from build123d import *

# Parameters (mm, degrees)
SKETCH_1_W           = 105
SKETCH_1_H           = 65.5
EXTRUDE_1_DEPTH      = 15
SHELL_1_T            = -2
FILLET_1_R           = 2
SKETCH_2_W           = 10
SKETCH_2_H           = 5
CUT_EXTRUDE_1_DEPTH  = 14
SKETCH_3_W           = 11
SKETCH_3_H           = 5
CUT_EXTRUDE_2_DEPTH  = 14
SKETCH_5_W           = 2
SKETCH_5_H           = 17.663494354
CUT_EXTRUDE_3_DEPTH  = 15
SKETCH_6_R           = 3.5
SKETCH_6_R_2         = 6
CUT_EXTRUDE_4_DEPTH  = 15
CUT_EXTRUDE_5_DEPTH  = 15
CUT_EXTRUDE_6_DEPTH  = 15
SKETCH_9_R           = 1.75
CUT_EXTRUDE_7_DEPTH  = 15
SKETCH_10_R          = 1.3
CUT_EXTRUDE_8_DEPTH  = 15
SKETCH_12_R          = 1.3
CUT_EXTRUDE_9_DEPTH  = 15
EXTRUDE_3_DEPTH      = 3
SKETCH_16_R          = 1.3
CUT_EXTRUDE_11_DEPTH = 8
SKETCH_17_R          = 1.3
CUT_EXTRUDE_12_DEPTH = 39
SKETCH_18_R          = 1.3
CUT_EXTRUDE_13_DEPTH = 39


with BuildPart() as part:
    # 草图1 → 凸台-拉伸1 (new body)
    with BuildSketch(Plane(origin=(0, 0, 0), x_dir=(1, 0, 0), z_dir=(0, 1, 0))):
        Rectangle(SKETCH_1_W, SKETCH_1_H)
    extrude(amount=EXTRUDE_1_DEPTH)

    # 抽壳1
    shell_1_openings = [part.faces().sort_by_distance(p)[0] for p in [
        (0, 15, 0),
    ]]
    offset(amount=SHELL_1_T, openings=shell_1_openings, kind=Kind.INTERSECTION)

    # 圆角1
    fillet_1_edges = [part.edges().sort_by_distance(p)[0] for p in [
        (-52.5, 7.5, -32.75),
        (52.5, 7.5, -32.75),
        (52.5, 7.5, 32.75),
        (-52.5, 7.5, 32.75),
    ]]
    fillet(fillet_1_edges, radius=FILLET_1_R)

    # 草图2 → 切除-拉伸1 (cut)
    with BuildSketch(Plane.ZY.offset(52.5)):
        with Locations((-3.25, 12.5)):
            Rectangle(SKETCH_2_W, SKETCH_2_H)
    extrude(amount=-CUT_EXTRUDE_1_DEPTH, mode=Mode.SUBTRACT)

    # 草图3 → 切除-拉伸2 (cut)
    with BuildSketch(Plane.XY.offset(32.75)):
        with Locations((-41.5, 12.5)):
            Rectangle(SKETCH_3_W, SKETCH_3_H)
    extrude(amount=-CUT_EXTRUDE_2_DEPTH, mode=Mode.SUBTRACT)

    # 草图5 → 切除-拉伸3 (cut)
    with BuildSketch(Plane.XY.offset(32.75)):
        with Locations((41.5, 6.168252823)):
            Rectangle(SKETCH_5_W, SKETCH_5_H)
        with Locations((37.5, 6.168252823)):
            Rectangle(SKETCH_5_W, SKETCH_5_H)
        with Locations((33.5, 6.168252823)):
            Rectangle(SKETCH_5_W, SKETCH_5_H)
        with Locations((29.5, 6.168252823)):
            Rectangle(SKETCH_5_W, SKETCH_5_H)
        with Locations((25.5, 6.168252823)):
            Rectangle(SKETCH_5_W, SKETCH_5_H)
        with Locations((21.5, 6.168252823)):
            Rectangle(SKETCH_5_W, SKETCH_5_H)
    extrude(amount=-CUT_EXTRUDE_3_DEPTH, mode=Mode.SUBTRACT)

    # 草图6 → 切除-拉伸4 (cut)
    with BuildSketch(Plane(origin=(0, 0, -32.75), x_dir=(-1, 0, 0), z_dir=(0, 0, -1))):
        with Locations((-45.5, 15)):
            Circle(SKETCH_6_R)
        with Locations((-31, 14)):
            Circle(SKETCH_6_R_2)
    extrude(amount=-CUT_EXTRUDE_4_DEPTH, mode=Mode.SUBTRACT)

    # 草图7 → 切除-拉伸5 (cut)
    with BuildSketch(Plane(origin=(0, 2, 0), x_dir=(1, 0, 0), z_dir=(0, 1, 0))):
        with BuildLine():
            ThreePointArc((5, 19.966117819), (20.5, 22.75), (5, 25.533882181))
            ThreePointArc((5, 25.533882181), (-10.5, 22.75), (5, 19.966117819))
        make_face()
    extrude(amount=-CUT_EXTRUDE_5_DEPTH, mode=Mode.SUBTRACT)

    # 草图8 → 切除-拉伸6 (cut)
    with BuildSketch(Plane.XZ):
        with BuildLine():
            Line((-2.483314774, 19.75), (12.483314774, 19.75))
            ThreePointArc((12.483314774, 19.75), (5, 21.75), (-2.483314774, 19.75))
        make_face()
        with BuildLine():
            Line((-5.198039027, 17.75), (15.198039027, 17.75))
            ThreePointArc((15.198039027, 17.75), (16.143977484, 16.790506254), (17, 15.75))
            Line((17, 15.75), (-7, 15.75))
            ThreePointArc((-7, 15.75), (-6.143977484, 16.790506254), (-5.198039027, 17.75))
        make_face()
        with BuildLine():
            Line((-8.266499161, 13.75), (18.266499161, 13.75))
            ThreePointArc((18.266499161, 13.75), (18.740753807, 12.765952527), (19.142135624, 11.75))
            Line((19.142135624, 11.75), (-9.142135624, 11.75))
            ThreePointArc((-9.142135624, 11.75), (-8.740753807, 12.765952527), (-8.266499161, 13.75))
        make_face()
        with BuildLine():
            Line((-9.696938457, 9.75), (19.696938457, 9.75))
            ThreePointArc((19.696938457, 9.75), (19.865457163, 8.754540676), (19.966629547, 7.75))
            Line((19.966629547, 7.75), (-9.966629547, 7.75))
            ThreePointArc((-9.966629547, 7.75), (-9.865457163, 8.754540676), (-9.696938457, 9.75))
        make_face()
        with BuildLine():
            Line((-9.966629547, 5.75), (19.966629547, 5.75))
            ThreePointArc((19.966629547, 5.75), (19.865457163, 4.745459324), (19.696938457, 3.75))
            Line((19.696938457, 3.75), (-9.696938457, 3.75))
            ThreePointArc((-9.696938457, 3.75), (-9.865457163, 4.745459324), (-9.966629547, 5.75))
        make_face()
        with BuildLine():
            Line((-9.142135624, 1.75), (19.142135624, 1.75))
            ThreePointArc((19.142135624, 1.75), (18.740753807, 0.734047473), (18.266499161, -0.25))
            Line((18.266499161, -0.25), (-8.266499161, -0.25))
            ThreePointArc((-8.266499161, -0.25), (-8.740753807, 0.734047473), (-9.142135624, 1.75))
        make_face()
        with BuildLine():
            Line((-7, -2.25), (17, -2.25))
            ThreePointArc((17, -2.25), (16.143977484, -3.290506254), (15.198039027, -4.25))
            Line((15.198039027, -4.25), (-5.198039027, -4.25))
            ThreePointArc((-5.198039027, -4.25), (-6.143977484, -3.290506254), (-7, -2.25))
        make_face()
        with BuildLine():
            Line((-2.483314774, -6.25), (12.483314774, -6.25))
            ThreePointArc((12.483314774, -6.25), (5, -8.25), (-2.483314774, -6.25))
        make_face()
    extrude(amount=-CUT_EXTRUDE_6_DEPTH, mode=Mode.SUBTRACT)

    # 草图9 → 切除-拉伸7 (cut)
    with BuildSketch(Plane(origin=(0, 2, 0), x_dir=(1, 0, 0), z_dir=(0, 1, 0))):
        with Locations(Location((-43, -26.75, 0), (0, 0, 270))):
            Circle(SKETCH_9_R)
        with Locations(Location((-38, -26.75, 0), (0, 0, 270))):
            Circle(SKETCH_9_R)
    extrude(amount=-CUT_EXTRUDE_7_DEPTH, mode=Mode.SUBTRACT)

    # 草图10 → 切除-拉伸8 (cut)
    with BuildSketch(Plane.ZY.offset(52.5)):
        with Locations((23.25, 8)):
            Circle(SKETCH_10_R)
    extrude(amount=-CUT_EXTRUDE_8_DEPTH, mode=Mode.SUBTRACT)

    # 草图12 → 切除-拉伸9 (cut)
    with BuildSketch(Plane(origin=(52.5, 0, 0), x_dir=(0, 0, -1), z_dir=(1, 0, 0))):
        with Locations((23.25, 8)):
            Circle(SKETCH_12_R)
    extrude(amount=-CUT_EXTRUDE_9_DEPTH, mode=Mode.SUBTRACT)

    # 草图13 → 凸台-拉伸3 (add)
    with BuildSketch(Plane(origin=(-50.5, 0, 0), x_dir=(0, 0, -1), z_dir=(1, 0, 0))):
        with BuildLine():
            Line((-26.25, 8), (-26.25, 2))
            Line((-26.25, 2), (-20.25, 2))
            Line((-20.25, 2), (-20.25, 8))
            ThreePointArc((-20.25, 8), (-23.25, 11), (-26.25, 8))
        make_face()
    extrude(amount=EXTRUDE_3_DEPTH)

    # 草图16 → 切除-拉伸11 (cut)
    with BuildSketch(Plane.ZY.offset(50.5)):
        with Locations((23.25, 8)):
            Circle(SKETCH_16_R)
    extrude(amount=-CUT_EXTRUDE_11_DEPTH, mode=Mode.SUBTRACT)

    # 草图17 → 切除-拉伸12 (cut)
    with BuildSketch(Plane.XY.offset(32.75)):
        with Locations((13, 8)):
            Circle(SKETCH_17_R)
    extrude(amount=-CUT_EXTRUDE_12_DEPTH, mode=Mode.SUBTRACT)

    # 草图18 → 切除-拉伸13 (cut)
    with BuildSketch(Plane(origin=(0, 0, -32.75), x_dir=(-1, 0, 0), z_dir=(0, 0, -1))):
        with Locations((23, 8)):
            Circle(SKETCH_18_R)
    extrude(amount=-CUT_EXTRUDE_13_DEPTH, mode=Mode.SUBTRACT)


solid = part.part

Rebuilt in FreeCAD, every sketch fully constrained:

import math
import FreeCAD as App
import Part
import Sketcher

V = App.Vector


def edges_at(feature, points):
    """Names of the edges that pass closest to the given points."""
    edges = feature.Shape.Edges
    near = lambda p: min(range(len(edges)), key=lambda i: edges[i].distToShape(Part.Vertex(*p))[0])
    return sorted({f"Edge{near(p) + 1}" for p in points})


def faces_at(feature, points):
    """Names of the faces that lie closest to the given points."""
    faces = feature.Shape.Faces
    near = lambda p: min(range(len(faces)), key=lambda i: faces[i].distToShape(Part.Vertex(*p))[0])
    return sorted({f"Face{near(p) + 1}" for p in points})

doc = App.newDocument("Part")
params = doc.addObject("Spreadsheet::Sheet", "Params")
for row, (alias, value) in enumerate([
    ("sketch1_width", "105 mm"),
    ("sketch1_height", "65.5 mm"),
    ("pad1_length", "15 mm"),
    ("thickness_wall", "2 mm"),
    ("fillet_radius", "2 mm"),
    ("sketch2_width", "5 mm"),
    ("sketch2_height", "10 mm"),
    ("pocket1_length", "14 mm"),
    ("sketch3_width", "11 mm"),
    ("sketch3_height", "5 mm"),
    ("pocket2_length", "14 mm"),
    ("sketch4_width", "2 mm"),
    ("pocket3_length", "15 mm"),
    ("sketch5_diameter", "7 mm"),
    ("sketch5_diameter2", "12 mm"),
    ("pocket4_length", "15 mm"),
    ("sketch6_radius", "8 mm"),
    ("pocket5_length", "15 mm"),
    ("sketch7_radius", "15 mm"),
    ("sketch7_width", "24 mm"),
    ("pocket6_length", "15 mm"),
    ("sketch8_diameter", "3.5 mm"),
    ("pocket7_length", "15 mm"),
    ("sketch9_diameter", "2.6 mm"),
    ("pocket8_length", "15 mm"),
    ("sketch10_diameter", "2.6 mm"),
    ("pocket9_length", "15 mm"),
    ("sketch11_radius", "3 mm"),
    ("pad2_length", "3 mm"),
    ("sketch12_diameter", "2.6 mm"),
    ("pocket10_length", "8 mm"),
    ("sketch13_diameter", "2.6 mm"),
    ("pocket11_length", "39 mm"),
    ("sketch14_diameter", "2.6 mm"),
    ("pocket12_length", "39 mm"),
], start=1):
    params.set(f"A{row}", alias)
    params.set(f"B{row}", "=" + value)
    params.setAlias(f"B{row}", alias)

body = doc.addObject("PartDesign::Body", "Body")

# Sketch on XZ plane
sketch1 = body.newObject("Sketcher::SketchObject", "Sketch")
sketch1.AttachmentSupport = (doc.getObject("XZ_Plane"), [""])
sketch1.MapMode = "FlatFace"
sketch1.addGeometry([
    Part.LineSegment(V(-52, -33, 0), V(-52, 33, 0)),
    Part.LineSegment(V(-52, 33, 0), V(52, 33, 0)),
    Part.LineSegment(V(52, 33, 0), V(52, -33, 0)),
    Part.LineSegment(V(52, -33, 0), V(-52, -33, 0)),
], False)
sketch1.addConstraint([
    Sketcher.Constraint("Coincident", 0, 2, 1, 1),
    Sketcher.Constraint("Coincident", 1, 2, 2, 1),
    Sketcher.Constraint("Coincident", 2, 2, 3, 1),
    Sketcher.Constraint("Coincident", 3, 2, 0, 1),
    Sketcher.Constraint("Vertical", 0),
    Sketcher.Constraint("Horizontal", 1),
    Sketcher.Constraint("Vertical", 2),
    Sketcher.Constraint("Horizontal", 3),
    Sketcher.Constraint("Symmetric", 0, 2, 2, 2, -1, 1),
    Sketcher.Constraint("DistanceX", 1, 1, 1, 2, 105.0),
    Sketcher.Constraint("DistanceY", 0, 1, 0, 2, 65.5),
])
sketch1.setExpression("Constraints[9]", "Params.sketch1_width")
sketch1.setExpression("Constraints[10]", "Params.sketch1_height")
pad1 = body.newObject("PartDesign::Pad", "Pad")
pad1.Profile = sketch1
pad1.setExpression("Length", "Params.pad1_length")
pad1.Reversed = True
doc.recompute()

thickness = body.newObject("PartDesign::Thickness", "Thickness")
thickness.Base = (pad1, faces_at(pad1, [(0, 15, 0)]))
thickness.setExpression("Value", "Params.thickness_wall")
thickness.Reversed = True
thickness.Join = "Intersection"
doc.recompute()

fillet = body.newObject("PartDesign::Fillet", "Fillet")
fillet.Base = (thickness, edges_at(thickness, [
    (-52.5, 7.5, -32.75),
    (52.5, 7.5, -32.75),
    (52.5, 7.5, 32.75),
    (-52.5, 7.5, 32.75),
]))
fillet.setExpression("Radius", "Params.fillet_radius")

# Sketch on YZ plane
sketch2 = body.newObject("Sketcher::SketchObject", "Sketch001")
sketch2.AttachmentSupport = (doc.getObject("YZ_Plane"), [""])
sketch2.MapMode = "FlatFace"
sketch2.AttachmentOffset = App.Placement(V(0, 0, -52.5), App.Rotation())
sketch2.addGeometry([
    Part.LineSegment(V(15, -8, 0), V(10, -8, 0)),
    Part.LineSegment(V(10, -8, 0), V(10, 2, 0)),
    Part.LineSegment(V(10, 2, 0), V(15, 2, 0)),
    Part.LineSegment(V(15, 2, 0), V(15, -8, 0)),
], False)
sketch2.addConstraint([
    Sketcher.Constraint("Coincident", 0, 2, 1, 1),
    Sketcher.Constraint("Coincident", 1, 2, 2, 1),
    Sketcher.Constraint("Coincident", 2, 2, 3, 1),
    Sketcher.Constraint("Coincident", 3, 2, 0, 1),
    Sketcher.Constraint("Horizontal", 0),
    Sketcher.Constraint("Vertical", 1),
    Sketcher.Constraint("Horizontal", 2),
    Sketcher.Constraint("Vertical", 3),
    Sketcher.Constraint("DistanceX", 0, 2, 0, 1, 5.0),
    Sketcher.Constraint("DistanceY", 1, 1, 1, 2, 10.0),
    Sketcher.Constraint("DistanceX", -1, 1, 0, 2, 10.0),
    Sketcher.Constraint("DistanceY", 0, 2, -1, 1, 8.25),
])
sketch2.setExpression("Constraints[8]", "Params.sketch2_width")
sketch2.setExpression("Constraints[9]", "Params.sketch2_height")
pocket1 = body.newObject("PartDesign::Pocket", "Pocket")
pocket1.Profile = sketch2
pocket1.setExpression("Length", "Params.pocket1_length")
pocket1.Reversed = True

# Sketch on XY plane
sketch3 = body.newObject("Sketcher::SketchObject", "Sketch002")
sketch3.AttachmentSupport = (doc.getObject("XY_Plane"), [""])
sketch3.MapMode = "FlatFace"
sketch3.AttachmentOffset = App.Placement(V(0, 0, 32.75), App.Rotation())
sketch3.addGeometry([
    Part.LineSegment(V(-47, 15, 0), V(-47, 10, 0)),
    Part.LineSegment(V(-47, 10, 0), V(-36, 10, 0)),
    Part.LineSegment(V(-36, 10, 0), V(-36, 15, 0)),
    Part.LineSegment(V(-36, 15, 0), V(-47, 15, 0)),
], False)
sketch3.addConstraint([
    Sketcher.Constraint("Coincident", 0, 2, 1, 1),
    Sketcher.Constraint("Coincident", 1, 2, 2, 1),
    Sketcher.Constraint("Coincident", 2, 2, 3, 1),
    Sketcher.Constraint("Coincident", 3, 2, 0, 1),
    Sketcher.Constraint("Vertical", 0),
    Sketcher.Constraint("Horizontal", 1),
    Sketcher.Constraint("Vertical", 2),
    Sketcher.Constraint("Horizontal", 3),
    Sketcher.Constraint("DistanceX", 1, 1, 1, 2, 11.0),
    Sketcher.Constraint("DistanceY", 0, 2, 0, 1, 5.0),
    Sketcher.Constraint("DistanceX", 0, 2, -1, 1, 47.0),
    Sketcher.Constraint("DistanceY", -1, 1, 0, 2, 10.0),
])
sketch3.setExpression("Constraints[8]", "Params.sketch3_width")
sketch3.setExpression("Constraints[9]", "Params.sketch3_height")
pocket2 = body.newObject("PartDesign::Pocket", "Pocket001")
pocket2.Profile = sketch3
pocket2.setExpression("Length", "Params.pocket2_length")

# Sketch on XY plane
sketch4 = body.newObject("Sketcher::SketchObject", "Sketch003")
sketch4.AttachmentSupport = (doc.getObject("XY_Plane"), [""])
sketch4.MapMode = "FlatFace"
sketch4.AttachmentOffset = App.Placement(V(0, 0, 32.75), App.Rotation())
sketch4.addGeometry([
    Part.LineSegment(V(40.5, 15, 0), V(40.5, -2.7, 0)),  # 0
    Part.LineSegment(V(40.5, -2.7, 0), V(42.5, -2.7, 0)),  # 1
    Part.LineSegment(V(42.5, -2.7, 0), V(42.5, 15, 0)),  # 2
    Part.LineSegment(V(42.5, 15, 0), V(40.5, 15, 0)),  # 3
    Part.LineSegment(V(36.5, 15, 0), V(36.5, -2.7, 0)),  # 4
    Part.LineSegment(V(36.5, -2.7, 0), V(38.5, -2.7, 0)),  # 5
    Part.LineSegment(V(38.5, -2.7, 0), V(38.5, 15, 0)),  # 6
    Part.LineSegment(V(38.5, 15, 0), V(36.5, 15, 0)),  # 7
    Part.LineSegment(V(32.5, 15, 0), V(32.5, -2.7, 0)),  # 8
    Part.LineSegment(V(32.5, -2.7, 0), V(34.5, -2.7, 0)),  # 9
    Part.LineSegment(V(34.5, -2.7, 0), V(34.5, 15, 0)),  # 10
    Part.LineSegment(V(34.5, 15, 0), V(32.5, 15, 0)),  # 11
    Part.LineSegment(V(28.5, 15, 0), V(28.5, -2.7, 0)),  # 12
    Part.LineSegment(V(28.5, -2.7, 0), V(30.5, -2.7, 0)),  # 13
    Part.LineSegment(V(30.5, -2.7, 0), V(30.5, 15, 0)),  # 14
    Part.LineSegment(V(30.5, 15, 0), V(28.5, 15, 0)),  # 15
    Part.LineSegment(V(24.5, 15, 0), V(24.5, -2.7, 0)),  # 16
    Part.LineSegment(V(24.5, -2.7, 0), V(26.5, -2.7, 0)),  # 17
    Part.LineSegment(V(26.5, -2.7, 0), V(26.5, 15, 0)),  # 18
    Part.LineSegment(V(26.5, 15, 0), V(24.5, 15, 0)),  # 19
    Part.LineSegment(V(20.5, 15, 0), V(20.5, -2.7, 0)),  # 20
    Part.LineSegment(V(20.5, -2.7, 0), V(22.5, -2.7, 0)),  # 21
    Part.LineSegment(V(22.5, -2.7, 0), V(22.5, 15, 0)),  # 22
    Part.LineSegment(V(22.5, 15, 0), V(20.5, 15, 0)),  # 23
], False)
sketch4.addConstraint([
    Sketcher.Constraint("Coincident", 0, 2, 1, 1),
    Sketcher.Constraint("Coincident", 1, 2, 2, 1),
    Sketcher.Constraint("Coincident", 2, 2, 3, 1),
    Sketcher.Constraint("Coincident", 3, 2, 0, 1),
    Sketcher.Constraint("Coincident", 4, 2, 5, 1),
    Sketcher.Constraint("Coincident", 5, 2, 6, 1),
    Sketcher.Constraint("Coincident", 6, 2, 7, 1),
    Sketcher.Constraint("Coincident", 7, 2, 4, 1),
    Sketcher.Constraint("Coincident", 8, 2, 9, 1),
    Sketcher.Constraint("Coincident", 9, 2, 10, 1),
    Sketcher.Constraint("Coincident", 10, 2, 11, 1),
    Sketcher.Constraint("Coincident", 11, 2, 8, 1),
    Sketcher.Constraint("Coincident", 12, 2, 13, 1),
    Sketcher.Constraint("Coincident", 13, 2, 14, 1),
    Sketcher.Constraint("Coincident", 14, 2, 15, 1),
    Sketcher.Constraint("Coincident", 15, 2, 12, 1),
    Sketcher.Constraint("Coincident", 16, 2, 17, 1),
    Sketcher.Constraint("Coincident", 17, 2, 18, 1),
    Sketcher.Constraint("Coincident", 18, 2, 19, 1),
    Sketcher.Constraint("Coincident", 19, 2, 16, 1),
    Sketcher.Constraint("Coincident", 20, 2, 21, 1),
    Sketcher.Constraint("Coincident", 21, 2, 22, 1),
    Sketcher.Constraint("Coincident", 22, 2, 23, 1),
    Sketcher.Constraint("Coincident", 23, 2, 20, 1),
    Sketcher.Constraint("Vertical", 0),
    Sketcher.Constraint("Horizontal", 1),
    Sketcher.Constraint("Vertical", 2),
    Sketcher.Constraint("Horizontal", 3),
    Sketcher.Constraint("Vertical", 4),
    Sketcher.Constraint("Horizontal", 5),
    Sketcher.Constraint("Vertical", 6),
    Sketcher.Constraint("Horizontal", 7),
    Sketcher.Constraint("Vertical", 8),
    Sketcher.Constraint("Horizontal", 9),
    Sketcher.Constraint("Vertical", 10),
    Sketcher.Constraint("Horizontal", 11),
    Sketcher.Constraint("Vertical", 12),
    Sketcher.Constraint("Horizontal", 13),
    Sketcher.Constraint("Vertical", 14),
    Sketcher.Constraint("Horizontal", 15),
    Sketcher.Constraint("Vertical", 16),
    Sketcher.Constraint("Horizontal", 17),
    Sketcher.Constraint("Vertical", 18),
    Sketcher.Constraint("Horizontal", 19),
    Sketcher.Constraint("Vertical", 20),
    Sketcher.Constraint("Horizontal", 21),
    Sketcher.Constraint("Vertical", 22),
    Sketcher.Constraint("Horizontal", 23),
    Sketcher.Constraint("Horizontal", 1, 2, 4, 2),
    Sketcher.Constraint("Horizontal", 3, 2, 6, 2),
    Sketcher.Constraint("Horizontal", 5, 2, 8, 2),
    Sketcher.Constraint("Horizontal", 7, 2, 10, 2),
    Sketcher.Constraint("Horizontal", 9, 2, 12, 2),
    Sketcher.Constraint("Horizontal", 11, 2, 14, 2),
    Sketcher.Constraint("Horizontal", 13, 2, 16, 2),
    Sketcher.Constraint("Horizontal", 15, 2, 18, 2),
    Sketcher.Constraint("Horizontal", 17, 2, 20, 2),
    Sketcher.Constraint("Horizontal", 19, 2, 22, 2),
    Sketcher.Constraint("Equal", 3, 5),
    Sketcher.Constraint("Equal", 7, 9),
    Sketcher.Constraint("Equal", 11, 13),
    Sketcher.Constraint("Equal", 15, 17),
    Sketcher.Constraint("Equal", 19, 21),
    Sketcher.Constraint("DistanceX", 1, 1, 1, 2, 2.0),
    Sketcher.Constraint("DistanceY", -1, 1, 2, 2, 15.0),
    Sketcher.Constraint("DistanceX", 4, 2, 0, 2, 4.0),
    Sketcher.Constraint("DistanceX", 8, 2, 4, 2, 4.0),
    Sketcher.Constraint("DistanceX", 12, 2, 8, 2, 4.0),
    Sketcher.Constraint("DistanceX", 16, 2, 12, 2, 4.0),
    Sketcher.Constraint("DistanceX", 20, 2, 16, 2, 4.0),
    Sketcher.Constraint("DistanceX", -1, 1, 0, 2, 40.5),
    Sketcher.Constraint("DistanceY", 0, 2, 0, 1, 17.663494),
])
sketch4.setExpression("Constraints[63]", "Params.sketch4_width")
pocket3 = body.newObject("PartDesign::Pocket", "Pocket002")
pocket3.Profile = sketch4
pocket3.setExpression("Length", "Params.pocket3_length")

# Sketch on XY plane
sketch5 = body.newObject("Sketcher::SketchObject", "Sketch004")
sketch5.AttachmentSupport = (doc.getObject("XY_Plane"), [""])
sketch5.MapMode = "FlatFace"
sketch5.AttachmentOffset = App.Placement(V(0, 0, -32.75), App.Rotation())
sketch5.addGeometry([
    Part.Circle(V(45.5, 15, 0), V(0, 0, 1), 3.5),
    Part.Circle(V(31, 14, 0), V(0, 0, 1), 6),
], False)
sketch5.addConstraint([
    Sketcher.Constraint("Diameter", 0, 7.0),
    Sketcher.Constraint("Diameter", 1, 12.0),
    Sketcher.Constraint("DistanceY", -1, 1, 0, 3, 15.0),
    Sketcher.Constraint("DistanceX", -1, 1, 1, 3, 31.0),
    Sketcher.Constraint("DistanceY", -1, 1, 1, 3, 14.0),
    Sketcher.Constraint("DistanceX", -1, 1, 0, 3, 45.5),
])
sketch5.setExpression("Constraints[0]", "Params.sketch5_diameter")
sketch5.setExpression("Constraints[1]", "Params.sketch5_diameter2")
pocket4 = body.newObject("PartDesign::Pocket", "Pocket003")
pocket4.Profile = sketch5
pocket4.setExpression("Length", "Params.pocket4_length")
pocket4.Reversed = True

# Sketch on XZ plane
sketch6 = body.newObject("Sketcher::SketchObject", "Sketch005")
sketch6.AttachmentSupport = (doc.getObject("XZ_Plane"), [""])
sketch6.MapMode = "FlatFace"
sketch6.AttachmentOffset = App.Placement(V(0, 0, -2), App.Rotation())
sketch6.addGeometry([
    Part.ArcOfCircle(Part.Circle(V(12, -23, 0), V(0, 0, 1), 8), math.radians(-160), math.radians(160)),
    Part.ArcOfCircle(Part.Circle(V(-2, -23, 0), V(0, 0, 1), 8), math.radians(20), math.radians(340)),
], False)
sketch6.addConstraint([
    Sketcher.Constraint("Coincident", 0, 1, 1, 2),
    Sketcher.Constraint("Coincident", 1, 1, 0, 2),
    Sketcher.Constraint("Equal", 0, 1),
    Sketcher.Constraint("Horizontal", 0, 3, 1, 3),
    Sketcher.Constraint("Radius", 0, 8.0),
    Sketcher.Constraint("DistanceX", -1, 1, 0, 1, 5.0),
    Sketcher.Constraint("DistanceX", 1, 3, 0, 3, 15.0),
    Sketcher.Constraint("DistanceY", 0, 3, -1, 1, 22.75),
])
sketch6.setExpression("Constraints[4]", "Params.sketch6_radius")
pocket5 = body.newObject("PartDesign::Pocket", "Pocket004")
pocket5.Profile = sketch6
pocket5.setExpression("Length", "Params.pocket5_length")
pocket5.Reversed = True

# Sketch on XZ plane
sketch7 = body.newObject("Sketcher::SketchObject", "Sketch006")
sketch7.AttachmentSupport = (doc.getObject("XZ_Plane"), [""])
sketch7.MapMode = "FlatFace"
sketch7.addGeometry([
    Part.LineSegment(V(-2.5, 19.8, 0), V(12.5, 19.8, 0)),  # 0
    Part.ArcOfCircle(Part.Circle(V(5, 6.7, 0), V(0, 0, 1), 15), math.radians(60), math.radians(120)),  # 1
    Part.LineSegment(V(15.2, 17.8, 0), V(-5.2, 17.8, 0)),  # 2
    Part.ArcOfCircle(Part.Circle(V(5, 6.8, 0), V(0, 0, 1), 15), math.radians(132.83), math.radians(143.13)),  # 3
    Part.LineSegment(V(-7, 15.8, 0), V(17, 15.8, 0)),  # 4
    Part.ArcOfCircle(Part.Circle(V(5, 6.8, 0), V(0, 0, 1), 15), math.radians(36.87), math.radians(47.17)),  # 5
    Part.LineSegment(V(18.3, 13.8, 0), V(-8.3, 13.8, 0)),  # 6
    Part.ArcOfCircle(Part.Circle(V(5, 6.7, 0), V(0, 0, 1), 15), math.radians(152.18), math.radians(160.53)),  # 7
    Part.LineSegment(V(-9.1, 11.8, 0), V(19.1, 11.8, 0)),  # 8
    Part.ArcOfCircle(Part.Circle(V(5, 6.7, 0), V(0, 0, 1), 15), math.radians(19.47), math.radians(27.82)),  # 9
    Part.LineSegment(V(19.7, 9.8, 0), V(-9.7, 9.8, 0)),  # 10
    Part.ArcOfCircle(Part.Circle(V(5, 6.7, 0), V(0, 0, 1), 15), math.radians(168.46), math.radians(176.18)),  # 11
    Part.LineSegment(V(-10, 7.8, 0), V(20, 7.8, 0)),  # 12
    Part.ArcOfCircle(Part.Circle(V(5, 6.7, 0), V(0, 0, 1), 15), math.radians(3.82), math.radians(11.54)),  # 13
    Part.LineSegment(V(20, 5.8, 0), V(-10, 5.8, 0)),  # 14
    Part.ArcOfCircle(Part.Circle(V(5, 6.8, 0), V(0, 0, 1), 15), math.radians(-176.18), math.radians(-168.46)),  # 15
    Part.LineSegment(V(-9.7, 3.8, 0), V(19.7, 3.8, 0)),  # 16
    Part.ArcOfCircle(Part.Circle(V(5, 6.8, 0), V(0, 0, 1), 15), math.radians(-11.54), math.radians(-3.82)),  # 17
    Part.LineSegment(V(19.1, 1.8, 0), V(-9.1, 1.8, 0)),  # 18
    Part.ArcOfCircle(Part.Circle(V(5, 6.8, 0), V(0, 0, 1), 15), math.radians(-160.53), math.radians(-152.18)),  # 19
    Part.LineSegment(V(-8.3, -0.2, 0), V(18.3, -0.2, 0)),  # 20
    Part.ArcOfCircle(Part.Circle(V(5, 6.8, 0), V(0, 0, 1), 15), math.radians(-27.82), math.radians(-19.47)),  # 21
    Part.LineSegment(V(17, -2.2, 0), V(-7, -2.2, 0)),  # 22
    Part.ArcOfCircle(Part.Circle(V(5, 6.7, 0), V(0, 0, 1), 15), math.radians(-143.13), math.radians(-132.83)),  # 23
    Part.LineSegment(V(-5.2, -4.2, 0), V(15.2, -4.2, 0)),  # 24
    Part.ArcOfCircle(Part.Circle(V(5, 6.7, 0), V(0, 0, 1), 15), math.radians(-47.17), math.radians(-36.87)),  # 25
    Part.LineSegment(V(12.5, -6.2, 0), V(-2.5, -6.2, 0)),  # 26
    Part.ArcOfCircle(Part.Circle(V(5, 6.8, 0), V(0, 0, 1), 15), math.radians(-120), math.radians(-60)),  # 27
], False)
sketch7.addConstraint([
    Sketcher.Constraint("Coincident", 0, 1, 1, 2),
    Sketcher.Constraint("Coincident", 1, 1, 0, 2),
    Sketcher.Constraint("Coincident", 2, 2, 3, 1),
    Sketcher.Constraint("Coincident", 3, 2, 4, 1),
    Sketcher.Constraint("Coincident", 4, 2, 5, 1),
    Sketcher.Constraint("Coincident", 5, 2, 2, 1),
    Sketcher.Constraint("Coincident", 6, 2, 7, 1),
    Sketcher.Constraint("Coincident", 7, 2, 8, 1),
    Sketcher.Constraint("Coincident", 8, 2, 9, 1),
    Sketcher.Constraint("Coincident", 9, 2, 6, 1),
    Sketcher.Constraint("Coincident", 10, 2, 11, 1),
    Sketcher.Constraint("Coincident", 11, 2, 12, 1),
    Sketcher.Constraint("Coincident", 12, 2, 13, 1),
    Sketcher.Constraint("Coincident", 13, 2, 10, 1),
    Sketcher.Constraint("Coincident", 14, 2, 15, 1),
    Sketcher.Constraint("Coincident", 15, 2, 16, 1),
    Sketcher.Constraint("Coincident", 16, 2, 17, 1),
    Sketcher.Constraint("Coincident", 17, 2, 14, 1),
    Sketcher.Constraint("Coincident", 18, 2, 19, 1),
    Sketcher.Constraint("Coincident", 19, 2, 20, 1),
    Sketcher.Constraint("Coincident", 20, 2, 21, 1),
    Sketcher.Constraint("Coincident", 21, 2, 18, 1),
    Sketcher.Constraint("Coincident", 22, 2, 23, 1),
    Sketcher.Constraint("Coincident", 23, 2, 24, 1),
    Sketcher.Constraint("Coincident", 24, 2, 25, 1),
    Sketcher.Constraint("Coincident", 25, 2, 22, 1),
    Sketcher.Constraint("Coincident", 26, 1, 27, 2),
    Sketcher.Constraint("Coincident", 27, 1, 26, 2),
    Sketcher.Constraint("Horizontal", 0),
    Sketcher.Constraint("Horizontal", 2),
    Sketcher.Constraint("Horizontal", 4),
    Sketcher.Constraint("Horizontal", 6),
    Sketcher.Constraint("Horizontal", 8),
    Sketcher.Constraint("Horizontal", 10),
    Sketcher.Constraint("Horizontal", 12),
    Sketcher.Constraint("Horizontal", 14),
    Sketcher.Constraint("Horizontal", 16),
    Sketcher.Constraint("Horizontal", 18),
    Sketcher.Constraint("Horizontal", 20),
    Sketcher.Constraint("Horizontal", 22),
    Sketcher.Constraint("Horizontal", 24),
    Sketcher.Constraint("Horizontal", 26),
    Sketcher.Constraint("Coincident", 3, 3, 1, 3),
    Sketcher.Constraint("Coincident", 5, 3, 1, 3),
    Sketcher.Constraint("Coincident", 7, 3, 1, 3),
    Sketcher.Constraint("Coincident", 9, 3, 1, 3),
    Sketcher.Constraint("Coincident", 11, 3, 1, 3),
    Sketcher.Constraint("Coincident", 13, 3, 1, 3),
    Sketcher.Constraint("Coincident", 15, 3, 1, 3),
    Sketcher.Constraint("Coincident", 17, 3, 1, 3),
    Sketcher.Constraint("Coincident", 19, 3, 1, 3),
    Sketcher.Constraint("Coincident", 21, 3, 1, 3),
    Sketcher.Constraint("Coincident", 23, 3, 1, 3),
    Sketcher.Constraint("Coincident", 25, 3, 1, 3),
    Sketcher.Constraint("Coincident", 27, 3, 1, 3),
    Sketcher.Constraint("Equal", 1, 3),
    Sketcher.Constraint("Equal", 3, 5),
    Sketcher.Constraint("Equal", 5, 7),
    Sketcher.Constraint("Equal", 7, 9),
    Sketcher.Constraint("Equal", 9, 11),
    Sketcher.Constraint("Equal", 11, 13),
    Sketcher.Constraint("Equal", 13, 15),
    Sketcher.Constraint("Equal", 15, 17),
    Sketcher.Constraint("Equal", 17, 19),
    Sketcher.Constraint("Equal", 19, 21),
    Sketcher.Constraint("Equal", 21, 23),
    Sketcher.Constraint("Equal", 23, 25),
    Sketcher.Constraint("Equal", 25, 27),
    Sketcher.Constraint("Vertical", 11, 2, 14, 2),
    Sketcher.Constraint("Vertical", 10, 2, 15, 2),
    Sketcher.Constraint("Vertical", 7, 2, 18, 2),
    Sketcher.Constraint("Vertical", 6, 2, 19, 2),
    Sketcher.Constraint("Vertical", 3, 2, 22, 2),
    Sketcher.Constraint("Vertical", 2, 2, 23, 2),
    Sketcher.Constraint("Vertical", 1, 1, 26, 1),
    Sketcher.Constraint("Radius", 1, 15.0),
    Sketcher.Constraint("DistanceX", 4, 1, 4, 2, 24.0),
    Sketcher.Constraint("DistanceX", -1, 1, 1, 3, 5.0),
    Sketcher.Constraint("DistanceY", 17, 3, 0, 1, 13.0),
    Sketcher.Constraint("DistanceY", 2, 2, 0, 1, 2.0),
    Sketcher.Constraint("DistanceY", 6, 2, 3, 2, 2.0),
    Sketcher.Constraint("DistanceY", 7, 2, 6, 2, 2.0),
    Sketcher.Constraint("DistanceY", 10, 2, 7, 2, 2.0),
    Sketcher.Constraint("DistanceY", 11, 2, 10, 2, 2.0),
    Sketcher.Constraint("DistanceY", -1, 1, 1, 3, 6.75),
])
sketch7.setExpression("Constraints[75]", "Params.sketch7_radius")
sketch7.setExpression("Constraints[76]", "Params.sketch7_width")
pocket6 = body.newObject("PartDesign::Pocket", "Pocket005")
pocket6.Profile = sketch7
pocket6.setExpression("Length", "Params.pocket6_length")

# Sketch on XZ plane
sketch8 = body.newObject("Sketcher::SketchObject", "Sketch007")
sketch8.AttachmentSupport = (doc.getObject("XZ_Plane"), [""])
sketch8.MapMode = "FlatFace"
sketch8.AttachmentOffset = App.Placement(V(0, 0, -2), App.Rotation())
sketch8.addGeometry([
    Part.Circle(V(-43, 26.8, 0), V(0, 0, 1), 1.8),
    Part.Circle(V(-38, 26.8, 0), V(0, 0, 1), 1.8),
], False)
sketch8.addConstraint([
    Sketcher.Constraint("Equal", 0, 1),
    Sketcher.Constraint("Horizontal", 0, 3, 1, 3),
    Sketcher.Constraint("Diameter", 0, 3.5),
    Sketcher.Constraint("DistanceX", 0, 3, -1, 1, 43.0),
    Sketcher.Constraint("DistanceX", 1, 3, -1, 1, 38.0),
    Sketcher.Constraint("DistanceY", -1, 1, 0, 3, 26.75),
])
sketch8.setExpression("Constraints[2]", "Params.sketch8_diameter")
pocket7 = body.newObject("PartDesign::Pocket", "Pocket006")
pocket7.Profile = sketch8
pocket7.setExpression("Length", "Params.pocket7_length")
pocket7.Reversed = True

# Sketch on YZ plane
sketch9 = body.newObject("Sketcher::SketchObject", "Sketch008")
sketch9.AttachmentSupport = (doc.getObject("YZ_Plane"), [""])
sketch9.MapMode = "FlatFace"
sketch9.AttachmentOffset = App.Placement(V(0, 0, -52.5), App.Rotation())
sketch9.addGeometry(Part.Circle(V(8, 23.2, 0), V(0, 0, 1), 1.3), False)
sketch9.addConstraint([
    Sketcher.Constraint("Diameter", 0, 2.6),
    Sketcher.Constraint("DistanceX", -1, 1, 0, 3, 8.0),
    Sketcher.Constraint("DistanceY", -1, 1, 0, 3, 23.25),
])
sketch9.setExpression("Constraints[0]", "Params.sketch9_diameter")
pocket8 = body.newObject("PartDesign::Pocket", "Pocket007")
pocket8.Profile = sketch9
pocket8.setExpression("Length", "Params.pocket8_length")
pocket8.Reversed = True

# Sketch on YZ plane
sketch10 = body.newObject("Sketcher::SketchObject", "Sketch009")
sketch10.AttachmentSupport = (doc.getObject("YZ_Plane"), [""])
sketch10.MapMode = "FlatFace"
sketch10.AttachmentOffset = App.Placement(V(0, 0, 52.5), App.Rotation())
sketch10.addGeometry(Part.Circle(V(8, -23.2, 0), V(0, 0, 1), 1.3), False)
sketch10.addConstraint([
    Sketcher.Constraint("Diameter", 0, 2.6),
    Sketcher.Constraint("DistanceX", -1, 1, 0, 3, 8.0),
    Sketcher.Constraint("DistanceY", 0, 3, -1, 1, 23.25),
])
sketch10.setExpression("Constraints[0]", "Params.sketch10_diameter")
pocket9 = body.newObject("PartDesign::Pocket", "Pocket008")
pocket9.Profile = sketch10
pocket9.setExpression("Length", "Params.pocket9_length")

# Sketch on YZ plane
sketch11 = body.newObject("Sketcher::SketchObject", "Sketch010")
sketch11.AttachmentSupport = (doc.getObject("YZ_Plane"), [""])
sketch11.MapMode = "FlatFace"
sketch11.AttachmentOffset = App.Placement(V(0, 0, -50.5), App.Rotation())
sketch11.addGeometry([
    Part.LineSegment(V(8, 26.2, 0), V(2, 26.2, 0)),
    Part.LineSegment(V(2, 26.2, 0), V(2, 20.2, 0)),
    Part.LineSegment(V(2, 20.2, 0), V(8, 20.2, 0)),
    Part.ArcOfCircle(Part.Circle(V(8, 23.2, 0), V(0, 0, 1), 3), math.radians(-90), math.radians(90)),
], False)
sketch11.addConstraint([
    Sketcher.Constraint("Coincident", 0, 2, 1, 1),
    Sketcher.Constraint("Coincident", 1, 2, 2, 1),
    Sketcher.Constraint("Tangent", 2, 2, 3, 1),
    Sketcher.Constraint("Tangent", 3, 2, 0, 1),
    Sketcher.Constraint("Horizontal", 0),
    Sketcher.Constraint("Vertical", 1),
    Sketcher.Constraint("Horizontal", 2),
    Sketcher.Constraint("Equal", 2, 1),
    Sketcher.Constraint("Radius", 3, 3.0),
    Sketcher.Constraint("DistanceX", -1, 1, 3, 3, 8.0),
    Sketcher.Constraint("DistanceY", -1, 1, 3, 3, 23.25),
])
sketch11.setExpression("Constraints[8]", "Params.sketch11_radius")
pad2 = body.newObject("PartDesign::Pad", "Pad001")
pad2.Profile = sketch11
pad2.setExpression("Length", "Params.pad2_length")

# Sketch on YZ plane
sketch12 = body.newObject("Sketcher::SketchObject", "Sketch011")
sketch12.AttachmentSupport = (doc.getObject("YZ_Plane"), [""])
sketch12.MapMode = "FlatFace"
sketch12.AttachmentOffset = App.Placement(V(0, 0, -50.5), App.Rotation())
sketch12.addGeometry(Part.Circle(V(8, 23.2, 0), V(0, 0, 1), 1.3), False)
sketch12.addConstraint([
    Sketcher.Constraint("Diameter", 0, 2.6),
    Sketcher.Constraint("DistanceX", -1, 1, 0, 3, 8.0),
    Sketcher.Constraint("DistanceY", -1, 1, 0, 3, 23.25),
])
sketch12.setExpression("Constraints[0]", "Params.sketch12_diameter")
pocket10 = body.newObject("PartDesign::Pocket", "Pocket009")
pocket10.Profile = sketch12
pocket10.setExpression("Length", "Params.pocket10_length")
pocket10.Reversed = True

# Sketch on XY plane
sketch13 = body.newObject("Sketcher::SketchObject", "Sketch012")
sketch13.AttachmentSupport = (doc.getObject("XY_Plane"), [""])
sketch13.MapMode = "FlatFace"
sketch13.AttachmentOffset = App.Placement(V(0, 0, 32.75), App.Rotation())
sketch13.addGeometry(Part.Circle(V(13, 8, 0), V(0, 0, 1), 1.3), False)
sketch13.addConstraint([
    Sketcher.Constraint("Diameter", 0, 2.6),
    Sketcher.Constraint("DistanceX", -1, 1, 0, 3, 13.0),
    Sketcher.Constraint("DistanceY", -1, 1, 0, 3, 8.0),
])
sketch13.setExpression("Constraints[0]", "Params.sketch13_diameter")
pocket11 = body.newObject("PartDesign::Pocket", "Pocket010")
pocket11.Profile = sketch13
pocket11.setExpression("Length", "Params.pocket11_length")

# Sketch on XY plane
sketch14 = body.newObject("Sketcher::SketchObject", "Sketch013")
sketch14.AttachmentSupport = (doc.getObject("XY_Plane"), [""])
sketch14.MapMode = "FlatFace"
sketch14.AttachmentOffset = App.Placement(V(0, 0, -32.75), App.Rotation())
sketch14.addGeometry(Part.Circle(V(-23, 8, 0), V(0, 0, 1), 1.3), False)
sketch14.addConstraint([
    Sketcher.Constraint("Diameter", 0, 2.6),
    Sketcher.Constraint("DistanceX", 0, 3, -1, 1, 23.0),
    Sketcher.Constraint("DistanceY", -1, 1, 0, 3, 8.0),
])
sketch14.setExpression("Constraints[0]", "Params.sketch14_diameter")
pocket12 = body.newObject("PartDesign::Pocket", "Pocket011")
pocket12.Profile = sketch14
pocket12.setExpression("Length", "Params.pocket12_length")
pocket12.Reversed = True

doc.recompute()
